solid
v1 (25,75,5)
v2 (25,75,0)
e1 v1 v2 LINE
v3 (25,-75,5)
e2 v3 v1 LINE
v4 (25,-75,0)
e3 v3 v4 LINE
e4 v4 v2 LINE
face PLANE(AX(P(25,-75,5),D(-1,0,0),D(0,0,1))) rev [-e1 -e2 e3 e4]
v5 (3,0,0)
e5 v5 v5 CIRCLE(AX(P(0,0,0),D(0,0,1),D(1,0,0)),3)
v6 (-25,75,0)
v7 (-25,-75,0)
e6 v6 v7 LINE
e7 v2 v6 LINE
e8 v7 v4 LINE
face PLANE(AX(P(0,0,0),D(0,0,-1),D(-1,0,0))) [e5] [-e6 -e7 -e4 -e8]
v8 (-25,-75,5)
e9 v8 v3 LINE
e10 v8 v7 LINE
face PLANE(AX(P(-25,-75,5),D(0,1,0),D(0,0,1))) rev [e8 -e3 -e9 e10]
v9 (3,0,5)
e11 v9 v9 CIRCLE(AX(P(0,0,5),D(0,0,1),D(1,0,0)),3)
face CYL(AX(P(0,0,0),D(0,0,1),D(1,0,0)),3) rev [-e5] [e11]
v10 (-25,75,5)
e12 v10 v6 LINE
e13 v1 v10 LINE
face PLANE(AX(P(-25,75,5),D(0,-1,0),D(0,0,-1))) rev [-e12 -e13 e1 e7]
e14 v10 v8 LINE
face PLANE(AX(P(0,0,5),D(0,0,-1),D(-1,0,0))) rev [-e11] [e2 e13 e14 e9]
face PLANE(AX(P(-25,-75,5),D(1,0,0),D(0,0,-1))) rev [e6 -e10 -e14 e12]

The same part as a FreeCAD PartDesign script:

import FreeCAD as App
import Part
import Sketcher


def add_polygon(sketch, points):
    """Adds a closed chain of lines whose ends are joined by coincident constraints."""
    first, n = sketch.GeometryCount, len(points)
    for a, b in zip(points, points[1:] + points[:1]):
        sketch.addGeometry(Part.LineSegment(App.Vector(*a, 0), App.Vector(*b, 0)), False)
    for i in range(n):
        sketch.addConstraint(Sketcher.Constraint("Coincident", first + i, 2, first + (i + 1) % n, 1))

doc = App.newDocument("Part")
params = doc.addObject("Spreadsheet::Sheet", "Params")
for row, (alias, value) in enumerate([
    ("sketch1_width", "50 mm"),
    ("sketch1_height", "150 mm"),
    ("pad1_length", "5 mm"),
    ("sketch2_diameter", "6 mm"),
], start=1):
    params.set(f"A{row}", alias)
    params.set(f"B{row}", "=" + value)
    params.setAlias(f"B{row}", alias)

body = doc.addObject("PartDesign::Body", "Body")

# Sketch on XY plane
sketch1 = doc.addObject("Sketcher::SketchObject", "Sketch")
body.addObject(sketch1)
sketch1.AttachmentSupport = (doc.XY_Plane, [""])
sketch1.MapMode = "FlatFace"
add_polygon(sketch1, [(-25, 75), (-25, -75), (25, -75), (25, 75)])  # lines 0-3
sketch1.addConstraint(Sketcher.Constraint("Vertical", 0))
sketch1.addConstraint(Sketcher.Constraint("Horizontal", 1))
sketch1.addConstraint(Sketcher.Constraint("Vertical", 2))
sketch1.addConstraint(Sketcher.Constraint("Horizontal", 3))
sketch1.addConstraint(Sketcher.Constraint("Symmetric", 0, 2, 2, 2, -1, 1))
sketch1.addConstraint(Sketcher.Constraint("DistanceX", 1, 1, 1, 2, 50.0))
sketch1.addConstraint(Sketcher.Constraint("DistanceY", 0, 2, 0, 1, 150.0))
sketch1.setExpression("Constraints[9]", "Params.sketch1_width")
sketch1.setExpression("Constraints[10]", "Params.sketch1_height")
pad1 = doc.addObject("PartDesign::Pad", "Pad")
body.addObject(pad1)
pad1.Profile = sketch1
pad1.setExpression("Length", "Params.pad1_length")

# Sketch on XY plane
sketch2 = doc.addObject("Sketcher::SketchObject", "Sketch001")
body.addObject(sketch2)
sketch2.AttachmentSupport = (doc.XY_Plane, [""])
sketch2.MapMode = "FlatFace"
sketch2.AttachmentOffset = App.Placement(App.Vector(0, 0, 5), App.Rotation())
sketch2.addGeometry(Part.Circle(App.Vector(0, 0, 0), App.Vector(0, 0, 1), 3), False)
sketch2.addConstraint(Sketcher.Constraint("Coincident", 0, 3, -1, 1))
sketch2.addConstraint(Sketcher.Constraint("Diameter", 0, 6.0))
sketch2.setExpression("Constraints[1]", "Params.sketch2_diameter")
pocket1 = doc.addObject("PartDesign::Pocket", "Pocket")
body.addObject(pocket1)
pocket1.Profile = sketch2
pocket1.Type = "ThroughAll"

doc.recompute()
